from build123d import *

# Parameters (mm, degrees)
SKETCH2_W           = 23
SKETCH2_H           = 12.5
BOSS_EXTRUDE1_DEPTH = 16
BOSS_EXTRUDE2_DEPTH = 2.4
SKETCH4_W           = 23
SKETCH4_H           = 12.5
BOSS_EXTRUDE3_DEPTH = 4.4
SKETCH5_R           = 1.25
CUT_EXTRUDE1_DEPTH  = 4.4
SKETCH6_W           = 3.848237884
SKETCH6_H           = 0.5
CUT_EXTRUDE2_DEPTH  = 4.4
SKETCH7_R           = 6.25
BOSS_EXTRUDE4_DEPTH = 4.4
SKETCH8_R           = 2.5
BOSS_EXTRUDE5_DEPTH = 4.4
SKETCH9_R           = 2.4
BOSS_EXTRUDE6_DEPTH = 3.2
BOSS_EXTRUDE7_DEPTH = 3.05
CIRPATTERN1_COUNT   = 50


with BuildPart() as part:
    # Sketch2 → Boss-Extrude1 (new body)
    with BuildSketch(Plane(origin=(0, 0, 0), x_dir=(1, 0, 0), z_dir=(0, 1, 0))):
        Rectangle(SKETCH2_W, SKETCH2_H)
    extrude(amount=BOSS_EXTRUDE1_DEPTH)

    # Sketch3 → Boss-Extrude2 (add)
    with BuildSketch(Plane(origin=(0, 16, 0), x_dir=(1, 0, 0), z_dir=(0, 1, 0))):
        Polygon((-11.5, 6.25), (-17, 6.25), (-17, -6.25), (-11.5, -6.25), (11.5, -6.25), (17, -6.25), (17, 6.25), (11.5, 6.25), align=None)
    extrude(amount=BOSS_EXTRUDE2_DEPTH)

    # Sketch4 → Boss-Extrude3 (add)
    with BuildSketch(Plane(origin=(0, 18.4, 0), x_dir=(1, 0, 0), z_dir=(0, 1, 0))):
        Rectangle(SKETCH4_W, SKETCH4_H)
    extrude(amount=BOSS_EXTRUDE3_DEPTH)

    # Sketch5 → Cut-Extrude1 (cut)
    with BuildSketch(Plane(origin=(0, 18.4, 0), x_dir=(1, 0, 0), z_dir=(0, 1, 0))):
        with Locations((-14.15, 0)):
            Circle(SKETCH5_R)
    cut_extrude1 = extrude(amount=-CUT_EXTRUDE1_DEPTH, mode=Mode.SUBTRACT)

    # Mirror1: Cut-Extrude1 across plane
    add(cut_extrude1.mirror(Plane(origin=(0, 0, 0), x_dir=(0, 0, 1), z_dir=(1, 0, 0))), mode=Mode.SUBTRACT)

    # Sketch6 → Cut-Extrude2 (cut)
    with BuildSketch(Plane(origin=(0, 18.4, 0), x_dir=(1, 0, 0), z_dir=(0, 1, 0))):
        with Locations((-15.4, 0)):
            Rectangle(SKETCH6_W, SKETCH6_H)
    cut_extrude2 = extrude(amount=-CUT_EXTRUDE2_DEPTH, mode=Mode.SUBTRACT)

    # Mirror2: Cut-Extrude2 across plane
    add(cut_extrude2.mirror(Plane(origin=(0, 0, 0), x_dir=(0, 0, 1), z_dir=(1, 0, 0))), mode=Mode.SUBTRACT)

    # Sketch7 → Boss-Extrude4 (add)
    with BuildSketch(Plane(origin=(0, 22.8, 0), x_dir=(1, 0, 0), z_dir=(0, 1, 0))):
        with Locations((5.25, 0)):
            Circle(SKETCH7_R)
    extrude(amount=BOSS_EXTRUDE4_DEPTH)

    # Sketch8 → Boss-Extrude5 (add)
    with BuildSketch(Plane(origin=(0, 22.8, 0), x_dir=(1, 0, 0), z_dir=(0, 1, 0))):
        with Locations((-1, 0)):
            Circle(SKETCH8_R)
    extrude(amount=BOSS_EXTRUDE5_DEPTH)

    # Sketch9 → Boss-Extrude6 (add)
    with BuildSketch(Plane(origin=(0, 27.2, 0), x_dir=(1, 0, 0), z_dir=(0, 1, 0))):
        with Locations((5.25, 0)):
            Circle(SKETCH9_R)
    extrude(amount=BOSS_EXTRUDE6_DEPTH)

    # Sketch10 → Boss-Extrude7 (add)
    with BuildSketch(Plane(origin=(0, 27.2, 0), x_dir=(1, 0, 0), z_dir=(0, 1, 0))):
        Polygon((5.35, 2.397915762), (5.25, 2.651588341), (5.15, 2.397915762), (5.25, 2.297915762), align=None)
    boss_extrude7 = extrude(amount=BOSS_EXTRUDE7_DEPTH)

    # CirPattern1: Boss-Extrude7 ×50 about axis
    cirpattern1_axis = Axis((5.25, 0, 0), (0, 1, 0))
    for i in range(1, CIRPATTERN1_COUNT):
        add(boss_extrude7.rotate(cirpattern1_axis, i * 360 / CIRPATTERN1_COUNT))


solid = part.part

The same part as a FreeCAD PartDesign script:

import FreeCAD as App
import Part
import Sketcher

V = App.Vector

doc = App.newDocument("Part")
body = doc.addObject("PartDesign::Body", "Body")

# Sketch on XZ plane
sketch1 = body.newObject("Sketcher::SketchObject", "Sketch")
sketch1.AttachmentSupport = (doc.getObject("XZ_Plane"), [""])
sketch1.MapMode = "FlatFace"
sketch1.addGeometry(Part.LineSegment(V(-12, -6, 0), V(-12, 6, 0)), False)
sketch1.addGeometry(Part.LineSegment(V(-12, 6, 0), V(12, 6, 0)), False)
sketch1.addGeometry(Part.LineSegment(V(12, 6, 0), V(12, -6, 0)), False)
sketch1.addGeometry(Part.LineSegment(V(12, -6, 0), V(-12, -6, 0)), False)
sketch1.addConstraint(Sketcher.Constraint("Coincident", 0, 2, 1, 1))
sketch1.addConstraint(Sketcher.Constraint("Coincident", 1, 2, 2, 1))
sketch1.addConstraint(Sketcher.Constraint("Coincident", 2, 2, 3, 1))
sketch1.addConstraint(Sketcher.Constraint("Coincident", 3, 2, 0, 1))
sketch1.addConstraint(Sketcher.Constraint("Vertical", 0))
sketch1.addConstraint(Sketcher.Constraint("Horizontal", 1))
sketch1.addConstraint(Sketcher.Constraint("Vertical", 2))
sketch1.addConstraint(Sketcher.Constraint("Horizontal", 3))
sketch1.addConstraint(Sketcher.Constraint("Symmetric", 0, 2, 2, 2, -1, 1))
sketch1.addConstraint(Sketcher.Constraint("DistanceX", 1, 1, 1, 2, 23.0))
sketch1.addConstraint(Sketcher.Constraint("DistanceY", 0, 1, 0, 2, 12.5))
pad1 = body.newObject("PartDesign::Pad", "Pad")
pad1.Profile = sketch1
pad1.Length = 16
pad1.Reversed = True

# Sketch on XZ plane
sketch2 = body.newObject("Sketcher::SketchObject", "Sketch001")
sketch2.AttachmentSupport = (doc.getObject("XZ_Plane"), [""])
sketch2.MapMode = "FlatFace"
sketch2.AttachmentOffset = App.Placement(V(0, 0, -16), App.Rotation())
sketch2.addGeometry(Part.LineSegment(V(-17, -6, 0), V(-17, 6, 0)), False)
sketch2.addGeometry(Part.LineSegment(V(-17, 6, 0), V(17, 6, 0)), False)
sketch2.addGeometry(Part.LineSegment(V(17, 6, 0), V(17, -6, 0)), False)
sketch2.addGeometry(Part.LineSegment(V(17, -6, 0), V(-17, -6, 0)), False)
sketch2.addConstraint(Sketcher.Constraint("Coincident", 0, 2, 1, 1))
sketch2.addConstraint(Sketcher.Constraint("Coincident", 1, 2, 2, 1))
sketch2.addConstraint(Sketcher.Constraint("Coincident", 2, 2, 3, 1))
sketch2.addConstraint(Sketcher.Constraint("Coincident", 3, 2, 0, 1))
sketch2.addConstraint(Sketcher.Constraint("Vertical", 0))
sketch2.addConstraint(Sketcher.Constraint("Horizontal", 1))
sketch2.addConstraint(Sketcher.Constraint("Vertical", 2))
sketch2.addConstraint(Sketcher.Constraint("Horizontal", 3))
sketch2.addConstraint(Sketcher.Constraint("Symmetric", 0, 2, 2, 2, -1, 1))
sketch2.addConstraint(Sketcher.Constraint("DistanceX", 1, 1, 1, 2, 34.0))
sketch2.addConstraint(Sketcher.Constraint("DistanceY", 0, 1, 0, 2, 12.5))
pad2 = body.newObject("PartDesign::Pad", "Pad001")
pad2.Profile = sketch2
pad2.Length = 2.4
pad2.Reversed = True

# Sketch on XZ plane
sketch3 = body.newObject("Sketcher::SketchObject", "Sketch002")
sketch3.AttachmentSupport = (doc.getObject("XZ_Plane"), [""])
sketch3.MapMode = "FlatFace"
sketch3.AttachmentOffset = App.Placement(V(0, 0, -18.4), App.Rotation())
sketch3.addGeometry(Part.LineSegment(V(-12, -6, 0), V(-12, 6, 0)), False)
sketch3.addGeometry(Part.LineSegment(V(-12, 6, 0), V(12, 6, 0)), False)
sketch3.addGeometry(Part.LineSegment(V(12, 6, 0), V(12, -6, 0)), False)
sketch3.addGeometry(Part.LineSegment(V(12, -6, 0), V(-12, -6, 0)), False)
sketch3.addConstraint(Sketcher.Constraint("Coincident", 0, 2, 1, 1))
sketch3.addConstraint(Sketcher.Constraint("Coincident", 1, 2, 2, 1))
sketch3.addConstraint(Sketcher.Constraint("Coincident", 2, 2, 3, 1))
sketch3.addConstraint(Sketcher.Constraint("Coincident", 3, 2, 0, 1))
sketch3.addConstraint(Sketcher.Constraint("Vertical", 0))
sketch3.addConstraint(Sketcher.Constraint("Horizontal", 1))
sketch3.addConstraint(Sketcher.Constraint("Vertical", 2))
sketch3.addConstraint(Sketcher.Constraint("Horizontal", 3))
sketch3.addConstraint(Sketcher.Constraint("Symmetric", 0, 2, 2, 2, -1, 1))
sketch3.addConstraint(Sketcher.Constraint("DistanceX", 1, 1, 1, 2, 23.0))
sketch3.addConstraint(Sketcher.Constraint("DistanceY", 0, 1, 0, 2, 12.5))
pad3 = body.newObject("PartDesign::Pad", "Pad002")
pad3.Profile = sketch3
pad3.Length = 4.4
pad3.Reversed = True

# Sketch on XZ plane
sketch4 = body.newObject("Sketcher::SketchObject", "Sketch003")
sketch4.AttachmentSupport = (doc.getObject("XZ_Plane"), [""])
sketch4.MapMode = "FlatFace"
sketch4.AttachmentOffset = App.Placement(V(0, 0, -18.4), App.Rotation())
sketch4.addGeometry(Part.Circle(V(-14.2, 0, 0), V(0, 0, 1), 1.2), False)
sketch4.addConstraint(Sketcher.Constraint("PointOnObject", 0, 3, -1))
sketch4.addConstraint(Sketcher.Constraint("Diameter", 0, 2.5))
sketch4.addConstraint(Sketcher.Constraint("DistanceX", 0, 3, -1, 1, 14.15))
pocket1 = body.newObject("PartDesign::Pocket", "Pocket")
pocket1.Profile = sketch4
pocket1.Length = 4.4
pocket1.Reversed = True
doc.recompute()

mirrored = body.newObject("PartDesign::Mirrored", "Mirrored")
mirrored.Originals = [pocket1]
mirrored.MirrorPlane = (doc.getObject("YZ_Plane"), [""])
body.Tip = mirrored

# Sketch on XZ plane
sketch5 = body.newObject("Sketcher::SketchObject", "Sketch004")
sketch5.AttachmentSupport = (doc.getObject("XZ_Plane"), [""])
sketch5.MapMode = "FlatFace"
sketch5.AttachmentOffset = App.Placement(V(0, 0, -18.4), App.Rotation())
sketch5.addGeometry(Part.LineSegment(V(-17.3, -0.2, 0), V(-17.3, 0.2, 0)), False)
sketch5.addGeometry(Part.LineSegment(V(-17.3, 0.2, 0), V(-13.5, 0.2, 0)), False)
sketch5.addGeometry(Part.LineSegment(V(-13.5, 0.2, 0), V(-13.5, -0.2, 0)), False)
sketch5.addGeometry(Part.LineSegment(V(-13.5, -0.2, 0), V(-17.3, -0.2, 0)), False)
sketch5.addConstraint(Sketcher.Constraint("Coincident", 0, 2, 1, 1))
sketch5.addConstraint(Sketcher.Constraint("Coincident", 1, 2, 2, 1))
sketch5.addConstraint(Sketcher.Constraint("Coincident", 2, 2, 3, 1))
sketch5.addConstraint(Sketcher.Constraint("Coincident", 3, 2, 0, 1))
sketch5.addConstraint(Sketcher.Constraint("Vertical", 0))
sketch5.addConstraint(Sketcher.Constraint("Horizontal", 1))
sketch5.addConstraint(Sketcher.Constraint("Vertical", 2))
sketch5.addConstraint(Sketcher.Constraint("Horizontal", 3))
sketch5.addConstraint(Sketcher.Constraint("DistanceY", 0, 1, 0, 2, 0.5))
sketch5.addConstraint(Sketcher.Constraint("DistanceY", -1, 1, 0, 2, 0.25))
sketch5.addConstraint(Sketcher.Constraint("DistanceX", 1, 1, 1, 2, 3.848238))
sketch5.addConstraint(Sketcher.Constraint("DistanceX", 0, 2, -1, 1, 17.324119))
pocket2 = body.newObject("PartDesign::Pocket", "Pocket001")
pocket2.Profile = sketch5
pocket2.Length = 4.4
pocket2.Reversed = True
doc.recompute()

mirrored2 = body.newObject("PartDesign::Mirrored", "Mirrored001")
mirrored2.Originals = [pocket2]
mirrored2.MirrorPlane = (doc.getObject("YZ_Plane"), [""])
body.Tip = mirrored2

# Sketch on XZ plane
sketch6 = body.newObject("Sketcher::SketchObject", "Sketch005")
sketch6.AttachmentSupport = (doc.getObject("XZ_Plane"), [""])
sketch6.MapMode = "FlatFace"
sketch6.AttachmentOffset = App.Placement(V(0, 0, -22.8), App.Rotation())
sketch6.addGeometry(Part.Circle(V(5, 0, 0), V(0, 0, 1), 6), False)
sketch6.addConstraint(Sketcher.Constraint("PointOnObject", 0, 3, -1))
sketch6.addConstraint(Sketcher.Constraint("Diameter", 0, 12.5))
sketch6.addConstraint(Sketcher.Constraint("DistanceX", -1, 1, 0, 3, 5.25))
pad4 = body.newObject("PartDesign::Pad", "Pad003")
pad4.Profile = sketch6
pad4.Length = 4.4
pad4.Reversed = True

# Sketch on XZ plane
sketch7 = body.newObject("Sketcher::SketchObject", "Sketch006")
sketch7.AttachmentSupport = (doc.getObject("XZ_Plane"), [""])
sketch7.MapMode = "FlatFace"
sketch7.AttachmentOffset = App.Placement(V(0, 0, -22.8), App.Rotation())
sketch7.addGeometry(Part.Circle(V(-1, 0, 0), V(0, 0, 1), 2.5), False)
sketch7.addConstraint(Sketcher.Constraint("PointOnObject", 0, 3, -1))
sketch7.addConstraint(Sketcher.Constraint("Diameter", 0, 5.0))
sketch7.addConstraint(Sketcher.Constraint("DistanceX", 0, 3, -1, 1, 1.0))
pad5 = body.newObject("PartDesign::Pad", "Pad004")
pad5.Profile = sketch7
pad5.Length = 4.4
pad5.Reversed = True

# Sketch on XZ plane
sketch8 = body.newObject("Sketcher::SketchObject", "Sketch007")
sketch8.AttachmentSupport = (doc.getObject("XZ_Plane"), [""])
sketch8.MapMode = "FlatFace"
sketch8.AttachmentOffset = App.Placement(V(0, 0, -27.2), App.Rotation())
sketch8.addGeometry(Part.Circle(V(5.2, 0, 0), V(0, 0, 1), 2.4), False)
sketch8.addConstraint(Sketcher.Constraint("PointOnObject", 0, 3, -1))
sketch8.addConstraint(Sketcher.Constraint("Diameter", 0, 4.8))
sketch8.addConstraint(Sketcher.Constraint("DistanceX", -1, 1, 0, 3, 5.25))
pad6 = body.newObject("PartDesign::Pad", "Pad005")
pad6.Profile = sketch8
pad6.Length = 3.2
pad6.Reversed = True

# Sketch on XZ plane
sketch9 = body.newObject("Sketcher::SketchObject", "Sketch008")
sketch9.AttachmentSupport = (doc.getObject("XZ_Plane"), [""])
sketch9.MapMode = "FlatFace"
sketch9.AttachmentOffset = App.Placement(V(0, 0, -27.2), App.Rotation())
sketch9.addGeometry(Part.LineSegment(V(5.35, -2.4, 0), V(5.25, -2.65, 0)), False)
sketch9.addGeometry(Part.LineSegment(V(5.25, -2.65, 0), V(5.15, -2.4, 0)), False)
sketch9.addGeometry(Part.LineSegment(V(5.15, -2.4, 0), V(5.25, -2.3, 0)), False)
sketch9.addGeometry(Part.LineSegment(V(5.25, -2.3, 0), V(5.35, -2.4, 0)), False)
sketch9.addConstraint(Sketcher.Constraint("Coincident", 0, 2, 1, 1))
sketch9.addConstraint(Sketcher.Constraint("Coincident", 1, 2, 2, 1))
sketch9.addConstraint(Sketcher.Constraint("Coincident", 2, 2, 3, 1))
sketch9.addConstraint(Sketcher.Constraint("Coincident", 3, 2, 0, 1))
sketch9.addConstraint(Sketcher.Constraint("Perpendicular", 2, 3))
sketch9.addConstraint(Sketcher.Constraint("Horizontal", 1, 2, 3, 2))
sketch9.addConstraint(Sketcher.Constraint("Vertical", 0, 2, 2, 2))
sketch9.addConstraint(Sketcher.Constraint("Equal", 0, 1))
sketch9.addConstraint(Sketcher.Constraint("DistanceX", 1, 2, 0, 2, 0.1))
sketch9.addConstraint(Sketcher.Constraint("DistanceX", -1, 1, 0, 2, 5.25))
sketch9.addConstraint(Sketcher.Constraint("Distance", 0, 0.272672))
sketch9.addConstraint(Sketcher.Constraint("DistanceY", 0, 2, -1, 1, 2.651588))
pad7 = body.newObject("PartDesign::Pad", "Pad006")
pad7.Profile = sketch9
pad7.Length = 3.05
pad7.Reversed = True
doc.recompute()

datumline = body.newObject("PartDesign::Line", "DatumLine")
datumline.Placement = App.Placement(V(5.25, 0, 0), App.Rotation(V(0, 0, 1), V(0, 1, 0)))
polarpattern = body.newObject("PartDesign::PolarPattern", "PolarPattern")
polarpattern.Originals = [pad7]
polarpattern.Axis = (datumline, [""])
polarpattern.Angle = 360
polarpattern.Occurrences = 50
body.Tip = polarpattern

doc.recompute()
